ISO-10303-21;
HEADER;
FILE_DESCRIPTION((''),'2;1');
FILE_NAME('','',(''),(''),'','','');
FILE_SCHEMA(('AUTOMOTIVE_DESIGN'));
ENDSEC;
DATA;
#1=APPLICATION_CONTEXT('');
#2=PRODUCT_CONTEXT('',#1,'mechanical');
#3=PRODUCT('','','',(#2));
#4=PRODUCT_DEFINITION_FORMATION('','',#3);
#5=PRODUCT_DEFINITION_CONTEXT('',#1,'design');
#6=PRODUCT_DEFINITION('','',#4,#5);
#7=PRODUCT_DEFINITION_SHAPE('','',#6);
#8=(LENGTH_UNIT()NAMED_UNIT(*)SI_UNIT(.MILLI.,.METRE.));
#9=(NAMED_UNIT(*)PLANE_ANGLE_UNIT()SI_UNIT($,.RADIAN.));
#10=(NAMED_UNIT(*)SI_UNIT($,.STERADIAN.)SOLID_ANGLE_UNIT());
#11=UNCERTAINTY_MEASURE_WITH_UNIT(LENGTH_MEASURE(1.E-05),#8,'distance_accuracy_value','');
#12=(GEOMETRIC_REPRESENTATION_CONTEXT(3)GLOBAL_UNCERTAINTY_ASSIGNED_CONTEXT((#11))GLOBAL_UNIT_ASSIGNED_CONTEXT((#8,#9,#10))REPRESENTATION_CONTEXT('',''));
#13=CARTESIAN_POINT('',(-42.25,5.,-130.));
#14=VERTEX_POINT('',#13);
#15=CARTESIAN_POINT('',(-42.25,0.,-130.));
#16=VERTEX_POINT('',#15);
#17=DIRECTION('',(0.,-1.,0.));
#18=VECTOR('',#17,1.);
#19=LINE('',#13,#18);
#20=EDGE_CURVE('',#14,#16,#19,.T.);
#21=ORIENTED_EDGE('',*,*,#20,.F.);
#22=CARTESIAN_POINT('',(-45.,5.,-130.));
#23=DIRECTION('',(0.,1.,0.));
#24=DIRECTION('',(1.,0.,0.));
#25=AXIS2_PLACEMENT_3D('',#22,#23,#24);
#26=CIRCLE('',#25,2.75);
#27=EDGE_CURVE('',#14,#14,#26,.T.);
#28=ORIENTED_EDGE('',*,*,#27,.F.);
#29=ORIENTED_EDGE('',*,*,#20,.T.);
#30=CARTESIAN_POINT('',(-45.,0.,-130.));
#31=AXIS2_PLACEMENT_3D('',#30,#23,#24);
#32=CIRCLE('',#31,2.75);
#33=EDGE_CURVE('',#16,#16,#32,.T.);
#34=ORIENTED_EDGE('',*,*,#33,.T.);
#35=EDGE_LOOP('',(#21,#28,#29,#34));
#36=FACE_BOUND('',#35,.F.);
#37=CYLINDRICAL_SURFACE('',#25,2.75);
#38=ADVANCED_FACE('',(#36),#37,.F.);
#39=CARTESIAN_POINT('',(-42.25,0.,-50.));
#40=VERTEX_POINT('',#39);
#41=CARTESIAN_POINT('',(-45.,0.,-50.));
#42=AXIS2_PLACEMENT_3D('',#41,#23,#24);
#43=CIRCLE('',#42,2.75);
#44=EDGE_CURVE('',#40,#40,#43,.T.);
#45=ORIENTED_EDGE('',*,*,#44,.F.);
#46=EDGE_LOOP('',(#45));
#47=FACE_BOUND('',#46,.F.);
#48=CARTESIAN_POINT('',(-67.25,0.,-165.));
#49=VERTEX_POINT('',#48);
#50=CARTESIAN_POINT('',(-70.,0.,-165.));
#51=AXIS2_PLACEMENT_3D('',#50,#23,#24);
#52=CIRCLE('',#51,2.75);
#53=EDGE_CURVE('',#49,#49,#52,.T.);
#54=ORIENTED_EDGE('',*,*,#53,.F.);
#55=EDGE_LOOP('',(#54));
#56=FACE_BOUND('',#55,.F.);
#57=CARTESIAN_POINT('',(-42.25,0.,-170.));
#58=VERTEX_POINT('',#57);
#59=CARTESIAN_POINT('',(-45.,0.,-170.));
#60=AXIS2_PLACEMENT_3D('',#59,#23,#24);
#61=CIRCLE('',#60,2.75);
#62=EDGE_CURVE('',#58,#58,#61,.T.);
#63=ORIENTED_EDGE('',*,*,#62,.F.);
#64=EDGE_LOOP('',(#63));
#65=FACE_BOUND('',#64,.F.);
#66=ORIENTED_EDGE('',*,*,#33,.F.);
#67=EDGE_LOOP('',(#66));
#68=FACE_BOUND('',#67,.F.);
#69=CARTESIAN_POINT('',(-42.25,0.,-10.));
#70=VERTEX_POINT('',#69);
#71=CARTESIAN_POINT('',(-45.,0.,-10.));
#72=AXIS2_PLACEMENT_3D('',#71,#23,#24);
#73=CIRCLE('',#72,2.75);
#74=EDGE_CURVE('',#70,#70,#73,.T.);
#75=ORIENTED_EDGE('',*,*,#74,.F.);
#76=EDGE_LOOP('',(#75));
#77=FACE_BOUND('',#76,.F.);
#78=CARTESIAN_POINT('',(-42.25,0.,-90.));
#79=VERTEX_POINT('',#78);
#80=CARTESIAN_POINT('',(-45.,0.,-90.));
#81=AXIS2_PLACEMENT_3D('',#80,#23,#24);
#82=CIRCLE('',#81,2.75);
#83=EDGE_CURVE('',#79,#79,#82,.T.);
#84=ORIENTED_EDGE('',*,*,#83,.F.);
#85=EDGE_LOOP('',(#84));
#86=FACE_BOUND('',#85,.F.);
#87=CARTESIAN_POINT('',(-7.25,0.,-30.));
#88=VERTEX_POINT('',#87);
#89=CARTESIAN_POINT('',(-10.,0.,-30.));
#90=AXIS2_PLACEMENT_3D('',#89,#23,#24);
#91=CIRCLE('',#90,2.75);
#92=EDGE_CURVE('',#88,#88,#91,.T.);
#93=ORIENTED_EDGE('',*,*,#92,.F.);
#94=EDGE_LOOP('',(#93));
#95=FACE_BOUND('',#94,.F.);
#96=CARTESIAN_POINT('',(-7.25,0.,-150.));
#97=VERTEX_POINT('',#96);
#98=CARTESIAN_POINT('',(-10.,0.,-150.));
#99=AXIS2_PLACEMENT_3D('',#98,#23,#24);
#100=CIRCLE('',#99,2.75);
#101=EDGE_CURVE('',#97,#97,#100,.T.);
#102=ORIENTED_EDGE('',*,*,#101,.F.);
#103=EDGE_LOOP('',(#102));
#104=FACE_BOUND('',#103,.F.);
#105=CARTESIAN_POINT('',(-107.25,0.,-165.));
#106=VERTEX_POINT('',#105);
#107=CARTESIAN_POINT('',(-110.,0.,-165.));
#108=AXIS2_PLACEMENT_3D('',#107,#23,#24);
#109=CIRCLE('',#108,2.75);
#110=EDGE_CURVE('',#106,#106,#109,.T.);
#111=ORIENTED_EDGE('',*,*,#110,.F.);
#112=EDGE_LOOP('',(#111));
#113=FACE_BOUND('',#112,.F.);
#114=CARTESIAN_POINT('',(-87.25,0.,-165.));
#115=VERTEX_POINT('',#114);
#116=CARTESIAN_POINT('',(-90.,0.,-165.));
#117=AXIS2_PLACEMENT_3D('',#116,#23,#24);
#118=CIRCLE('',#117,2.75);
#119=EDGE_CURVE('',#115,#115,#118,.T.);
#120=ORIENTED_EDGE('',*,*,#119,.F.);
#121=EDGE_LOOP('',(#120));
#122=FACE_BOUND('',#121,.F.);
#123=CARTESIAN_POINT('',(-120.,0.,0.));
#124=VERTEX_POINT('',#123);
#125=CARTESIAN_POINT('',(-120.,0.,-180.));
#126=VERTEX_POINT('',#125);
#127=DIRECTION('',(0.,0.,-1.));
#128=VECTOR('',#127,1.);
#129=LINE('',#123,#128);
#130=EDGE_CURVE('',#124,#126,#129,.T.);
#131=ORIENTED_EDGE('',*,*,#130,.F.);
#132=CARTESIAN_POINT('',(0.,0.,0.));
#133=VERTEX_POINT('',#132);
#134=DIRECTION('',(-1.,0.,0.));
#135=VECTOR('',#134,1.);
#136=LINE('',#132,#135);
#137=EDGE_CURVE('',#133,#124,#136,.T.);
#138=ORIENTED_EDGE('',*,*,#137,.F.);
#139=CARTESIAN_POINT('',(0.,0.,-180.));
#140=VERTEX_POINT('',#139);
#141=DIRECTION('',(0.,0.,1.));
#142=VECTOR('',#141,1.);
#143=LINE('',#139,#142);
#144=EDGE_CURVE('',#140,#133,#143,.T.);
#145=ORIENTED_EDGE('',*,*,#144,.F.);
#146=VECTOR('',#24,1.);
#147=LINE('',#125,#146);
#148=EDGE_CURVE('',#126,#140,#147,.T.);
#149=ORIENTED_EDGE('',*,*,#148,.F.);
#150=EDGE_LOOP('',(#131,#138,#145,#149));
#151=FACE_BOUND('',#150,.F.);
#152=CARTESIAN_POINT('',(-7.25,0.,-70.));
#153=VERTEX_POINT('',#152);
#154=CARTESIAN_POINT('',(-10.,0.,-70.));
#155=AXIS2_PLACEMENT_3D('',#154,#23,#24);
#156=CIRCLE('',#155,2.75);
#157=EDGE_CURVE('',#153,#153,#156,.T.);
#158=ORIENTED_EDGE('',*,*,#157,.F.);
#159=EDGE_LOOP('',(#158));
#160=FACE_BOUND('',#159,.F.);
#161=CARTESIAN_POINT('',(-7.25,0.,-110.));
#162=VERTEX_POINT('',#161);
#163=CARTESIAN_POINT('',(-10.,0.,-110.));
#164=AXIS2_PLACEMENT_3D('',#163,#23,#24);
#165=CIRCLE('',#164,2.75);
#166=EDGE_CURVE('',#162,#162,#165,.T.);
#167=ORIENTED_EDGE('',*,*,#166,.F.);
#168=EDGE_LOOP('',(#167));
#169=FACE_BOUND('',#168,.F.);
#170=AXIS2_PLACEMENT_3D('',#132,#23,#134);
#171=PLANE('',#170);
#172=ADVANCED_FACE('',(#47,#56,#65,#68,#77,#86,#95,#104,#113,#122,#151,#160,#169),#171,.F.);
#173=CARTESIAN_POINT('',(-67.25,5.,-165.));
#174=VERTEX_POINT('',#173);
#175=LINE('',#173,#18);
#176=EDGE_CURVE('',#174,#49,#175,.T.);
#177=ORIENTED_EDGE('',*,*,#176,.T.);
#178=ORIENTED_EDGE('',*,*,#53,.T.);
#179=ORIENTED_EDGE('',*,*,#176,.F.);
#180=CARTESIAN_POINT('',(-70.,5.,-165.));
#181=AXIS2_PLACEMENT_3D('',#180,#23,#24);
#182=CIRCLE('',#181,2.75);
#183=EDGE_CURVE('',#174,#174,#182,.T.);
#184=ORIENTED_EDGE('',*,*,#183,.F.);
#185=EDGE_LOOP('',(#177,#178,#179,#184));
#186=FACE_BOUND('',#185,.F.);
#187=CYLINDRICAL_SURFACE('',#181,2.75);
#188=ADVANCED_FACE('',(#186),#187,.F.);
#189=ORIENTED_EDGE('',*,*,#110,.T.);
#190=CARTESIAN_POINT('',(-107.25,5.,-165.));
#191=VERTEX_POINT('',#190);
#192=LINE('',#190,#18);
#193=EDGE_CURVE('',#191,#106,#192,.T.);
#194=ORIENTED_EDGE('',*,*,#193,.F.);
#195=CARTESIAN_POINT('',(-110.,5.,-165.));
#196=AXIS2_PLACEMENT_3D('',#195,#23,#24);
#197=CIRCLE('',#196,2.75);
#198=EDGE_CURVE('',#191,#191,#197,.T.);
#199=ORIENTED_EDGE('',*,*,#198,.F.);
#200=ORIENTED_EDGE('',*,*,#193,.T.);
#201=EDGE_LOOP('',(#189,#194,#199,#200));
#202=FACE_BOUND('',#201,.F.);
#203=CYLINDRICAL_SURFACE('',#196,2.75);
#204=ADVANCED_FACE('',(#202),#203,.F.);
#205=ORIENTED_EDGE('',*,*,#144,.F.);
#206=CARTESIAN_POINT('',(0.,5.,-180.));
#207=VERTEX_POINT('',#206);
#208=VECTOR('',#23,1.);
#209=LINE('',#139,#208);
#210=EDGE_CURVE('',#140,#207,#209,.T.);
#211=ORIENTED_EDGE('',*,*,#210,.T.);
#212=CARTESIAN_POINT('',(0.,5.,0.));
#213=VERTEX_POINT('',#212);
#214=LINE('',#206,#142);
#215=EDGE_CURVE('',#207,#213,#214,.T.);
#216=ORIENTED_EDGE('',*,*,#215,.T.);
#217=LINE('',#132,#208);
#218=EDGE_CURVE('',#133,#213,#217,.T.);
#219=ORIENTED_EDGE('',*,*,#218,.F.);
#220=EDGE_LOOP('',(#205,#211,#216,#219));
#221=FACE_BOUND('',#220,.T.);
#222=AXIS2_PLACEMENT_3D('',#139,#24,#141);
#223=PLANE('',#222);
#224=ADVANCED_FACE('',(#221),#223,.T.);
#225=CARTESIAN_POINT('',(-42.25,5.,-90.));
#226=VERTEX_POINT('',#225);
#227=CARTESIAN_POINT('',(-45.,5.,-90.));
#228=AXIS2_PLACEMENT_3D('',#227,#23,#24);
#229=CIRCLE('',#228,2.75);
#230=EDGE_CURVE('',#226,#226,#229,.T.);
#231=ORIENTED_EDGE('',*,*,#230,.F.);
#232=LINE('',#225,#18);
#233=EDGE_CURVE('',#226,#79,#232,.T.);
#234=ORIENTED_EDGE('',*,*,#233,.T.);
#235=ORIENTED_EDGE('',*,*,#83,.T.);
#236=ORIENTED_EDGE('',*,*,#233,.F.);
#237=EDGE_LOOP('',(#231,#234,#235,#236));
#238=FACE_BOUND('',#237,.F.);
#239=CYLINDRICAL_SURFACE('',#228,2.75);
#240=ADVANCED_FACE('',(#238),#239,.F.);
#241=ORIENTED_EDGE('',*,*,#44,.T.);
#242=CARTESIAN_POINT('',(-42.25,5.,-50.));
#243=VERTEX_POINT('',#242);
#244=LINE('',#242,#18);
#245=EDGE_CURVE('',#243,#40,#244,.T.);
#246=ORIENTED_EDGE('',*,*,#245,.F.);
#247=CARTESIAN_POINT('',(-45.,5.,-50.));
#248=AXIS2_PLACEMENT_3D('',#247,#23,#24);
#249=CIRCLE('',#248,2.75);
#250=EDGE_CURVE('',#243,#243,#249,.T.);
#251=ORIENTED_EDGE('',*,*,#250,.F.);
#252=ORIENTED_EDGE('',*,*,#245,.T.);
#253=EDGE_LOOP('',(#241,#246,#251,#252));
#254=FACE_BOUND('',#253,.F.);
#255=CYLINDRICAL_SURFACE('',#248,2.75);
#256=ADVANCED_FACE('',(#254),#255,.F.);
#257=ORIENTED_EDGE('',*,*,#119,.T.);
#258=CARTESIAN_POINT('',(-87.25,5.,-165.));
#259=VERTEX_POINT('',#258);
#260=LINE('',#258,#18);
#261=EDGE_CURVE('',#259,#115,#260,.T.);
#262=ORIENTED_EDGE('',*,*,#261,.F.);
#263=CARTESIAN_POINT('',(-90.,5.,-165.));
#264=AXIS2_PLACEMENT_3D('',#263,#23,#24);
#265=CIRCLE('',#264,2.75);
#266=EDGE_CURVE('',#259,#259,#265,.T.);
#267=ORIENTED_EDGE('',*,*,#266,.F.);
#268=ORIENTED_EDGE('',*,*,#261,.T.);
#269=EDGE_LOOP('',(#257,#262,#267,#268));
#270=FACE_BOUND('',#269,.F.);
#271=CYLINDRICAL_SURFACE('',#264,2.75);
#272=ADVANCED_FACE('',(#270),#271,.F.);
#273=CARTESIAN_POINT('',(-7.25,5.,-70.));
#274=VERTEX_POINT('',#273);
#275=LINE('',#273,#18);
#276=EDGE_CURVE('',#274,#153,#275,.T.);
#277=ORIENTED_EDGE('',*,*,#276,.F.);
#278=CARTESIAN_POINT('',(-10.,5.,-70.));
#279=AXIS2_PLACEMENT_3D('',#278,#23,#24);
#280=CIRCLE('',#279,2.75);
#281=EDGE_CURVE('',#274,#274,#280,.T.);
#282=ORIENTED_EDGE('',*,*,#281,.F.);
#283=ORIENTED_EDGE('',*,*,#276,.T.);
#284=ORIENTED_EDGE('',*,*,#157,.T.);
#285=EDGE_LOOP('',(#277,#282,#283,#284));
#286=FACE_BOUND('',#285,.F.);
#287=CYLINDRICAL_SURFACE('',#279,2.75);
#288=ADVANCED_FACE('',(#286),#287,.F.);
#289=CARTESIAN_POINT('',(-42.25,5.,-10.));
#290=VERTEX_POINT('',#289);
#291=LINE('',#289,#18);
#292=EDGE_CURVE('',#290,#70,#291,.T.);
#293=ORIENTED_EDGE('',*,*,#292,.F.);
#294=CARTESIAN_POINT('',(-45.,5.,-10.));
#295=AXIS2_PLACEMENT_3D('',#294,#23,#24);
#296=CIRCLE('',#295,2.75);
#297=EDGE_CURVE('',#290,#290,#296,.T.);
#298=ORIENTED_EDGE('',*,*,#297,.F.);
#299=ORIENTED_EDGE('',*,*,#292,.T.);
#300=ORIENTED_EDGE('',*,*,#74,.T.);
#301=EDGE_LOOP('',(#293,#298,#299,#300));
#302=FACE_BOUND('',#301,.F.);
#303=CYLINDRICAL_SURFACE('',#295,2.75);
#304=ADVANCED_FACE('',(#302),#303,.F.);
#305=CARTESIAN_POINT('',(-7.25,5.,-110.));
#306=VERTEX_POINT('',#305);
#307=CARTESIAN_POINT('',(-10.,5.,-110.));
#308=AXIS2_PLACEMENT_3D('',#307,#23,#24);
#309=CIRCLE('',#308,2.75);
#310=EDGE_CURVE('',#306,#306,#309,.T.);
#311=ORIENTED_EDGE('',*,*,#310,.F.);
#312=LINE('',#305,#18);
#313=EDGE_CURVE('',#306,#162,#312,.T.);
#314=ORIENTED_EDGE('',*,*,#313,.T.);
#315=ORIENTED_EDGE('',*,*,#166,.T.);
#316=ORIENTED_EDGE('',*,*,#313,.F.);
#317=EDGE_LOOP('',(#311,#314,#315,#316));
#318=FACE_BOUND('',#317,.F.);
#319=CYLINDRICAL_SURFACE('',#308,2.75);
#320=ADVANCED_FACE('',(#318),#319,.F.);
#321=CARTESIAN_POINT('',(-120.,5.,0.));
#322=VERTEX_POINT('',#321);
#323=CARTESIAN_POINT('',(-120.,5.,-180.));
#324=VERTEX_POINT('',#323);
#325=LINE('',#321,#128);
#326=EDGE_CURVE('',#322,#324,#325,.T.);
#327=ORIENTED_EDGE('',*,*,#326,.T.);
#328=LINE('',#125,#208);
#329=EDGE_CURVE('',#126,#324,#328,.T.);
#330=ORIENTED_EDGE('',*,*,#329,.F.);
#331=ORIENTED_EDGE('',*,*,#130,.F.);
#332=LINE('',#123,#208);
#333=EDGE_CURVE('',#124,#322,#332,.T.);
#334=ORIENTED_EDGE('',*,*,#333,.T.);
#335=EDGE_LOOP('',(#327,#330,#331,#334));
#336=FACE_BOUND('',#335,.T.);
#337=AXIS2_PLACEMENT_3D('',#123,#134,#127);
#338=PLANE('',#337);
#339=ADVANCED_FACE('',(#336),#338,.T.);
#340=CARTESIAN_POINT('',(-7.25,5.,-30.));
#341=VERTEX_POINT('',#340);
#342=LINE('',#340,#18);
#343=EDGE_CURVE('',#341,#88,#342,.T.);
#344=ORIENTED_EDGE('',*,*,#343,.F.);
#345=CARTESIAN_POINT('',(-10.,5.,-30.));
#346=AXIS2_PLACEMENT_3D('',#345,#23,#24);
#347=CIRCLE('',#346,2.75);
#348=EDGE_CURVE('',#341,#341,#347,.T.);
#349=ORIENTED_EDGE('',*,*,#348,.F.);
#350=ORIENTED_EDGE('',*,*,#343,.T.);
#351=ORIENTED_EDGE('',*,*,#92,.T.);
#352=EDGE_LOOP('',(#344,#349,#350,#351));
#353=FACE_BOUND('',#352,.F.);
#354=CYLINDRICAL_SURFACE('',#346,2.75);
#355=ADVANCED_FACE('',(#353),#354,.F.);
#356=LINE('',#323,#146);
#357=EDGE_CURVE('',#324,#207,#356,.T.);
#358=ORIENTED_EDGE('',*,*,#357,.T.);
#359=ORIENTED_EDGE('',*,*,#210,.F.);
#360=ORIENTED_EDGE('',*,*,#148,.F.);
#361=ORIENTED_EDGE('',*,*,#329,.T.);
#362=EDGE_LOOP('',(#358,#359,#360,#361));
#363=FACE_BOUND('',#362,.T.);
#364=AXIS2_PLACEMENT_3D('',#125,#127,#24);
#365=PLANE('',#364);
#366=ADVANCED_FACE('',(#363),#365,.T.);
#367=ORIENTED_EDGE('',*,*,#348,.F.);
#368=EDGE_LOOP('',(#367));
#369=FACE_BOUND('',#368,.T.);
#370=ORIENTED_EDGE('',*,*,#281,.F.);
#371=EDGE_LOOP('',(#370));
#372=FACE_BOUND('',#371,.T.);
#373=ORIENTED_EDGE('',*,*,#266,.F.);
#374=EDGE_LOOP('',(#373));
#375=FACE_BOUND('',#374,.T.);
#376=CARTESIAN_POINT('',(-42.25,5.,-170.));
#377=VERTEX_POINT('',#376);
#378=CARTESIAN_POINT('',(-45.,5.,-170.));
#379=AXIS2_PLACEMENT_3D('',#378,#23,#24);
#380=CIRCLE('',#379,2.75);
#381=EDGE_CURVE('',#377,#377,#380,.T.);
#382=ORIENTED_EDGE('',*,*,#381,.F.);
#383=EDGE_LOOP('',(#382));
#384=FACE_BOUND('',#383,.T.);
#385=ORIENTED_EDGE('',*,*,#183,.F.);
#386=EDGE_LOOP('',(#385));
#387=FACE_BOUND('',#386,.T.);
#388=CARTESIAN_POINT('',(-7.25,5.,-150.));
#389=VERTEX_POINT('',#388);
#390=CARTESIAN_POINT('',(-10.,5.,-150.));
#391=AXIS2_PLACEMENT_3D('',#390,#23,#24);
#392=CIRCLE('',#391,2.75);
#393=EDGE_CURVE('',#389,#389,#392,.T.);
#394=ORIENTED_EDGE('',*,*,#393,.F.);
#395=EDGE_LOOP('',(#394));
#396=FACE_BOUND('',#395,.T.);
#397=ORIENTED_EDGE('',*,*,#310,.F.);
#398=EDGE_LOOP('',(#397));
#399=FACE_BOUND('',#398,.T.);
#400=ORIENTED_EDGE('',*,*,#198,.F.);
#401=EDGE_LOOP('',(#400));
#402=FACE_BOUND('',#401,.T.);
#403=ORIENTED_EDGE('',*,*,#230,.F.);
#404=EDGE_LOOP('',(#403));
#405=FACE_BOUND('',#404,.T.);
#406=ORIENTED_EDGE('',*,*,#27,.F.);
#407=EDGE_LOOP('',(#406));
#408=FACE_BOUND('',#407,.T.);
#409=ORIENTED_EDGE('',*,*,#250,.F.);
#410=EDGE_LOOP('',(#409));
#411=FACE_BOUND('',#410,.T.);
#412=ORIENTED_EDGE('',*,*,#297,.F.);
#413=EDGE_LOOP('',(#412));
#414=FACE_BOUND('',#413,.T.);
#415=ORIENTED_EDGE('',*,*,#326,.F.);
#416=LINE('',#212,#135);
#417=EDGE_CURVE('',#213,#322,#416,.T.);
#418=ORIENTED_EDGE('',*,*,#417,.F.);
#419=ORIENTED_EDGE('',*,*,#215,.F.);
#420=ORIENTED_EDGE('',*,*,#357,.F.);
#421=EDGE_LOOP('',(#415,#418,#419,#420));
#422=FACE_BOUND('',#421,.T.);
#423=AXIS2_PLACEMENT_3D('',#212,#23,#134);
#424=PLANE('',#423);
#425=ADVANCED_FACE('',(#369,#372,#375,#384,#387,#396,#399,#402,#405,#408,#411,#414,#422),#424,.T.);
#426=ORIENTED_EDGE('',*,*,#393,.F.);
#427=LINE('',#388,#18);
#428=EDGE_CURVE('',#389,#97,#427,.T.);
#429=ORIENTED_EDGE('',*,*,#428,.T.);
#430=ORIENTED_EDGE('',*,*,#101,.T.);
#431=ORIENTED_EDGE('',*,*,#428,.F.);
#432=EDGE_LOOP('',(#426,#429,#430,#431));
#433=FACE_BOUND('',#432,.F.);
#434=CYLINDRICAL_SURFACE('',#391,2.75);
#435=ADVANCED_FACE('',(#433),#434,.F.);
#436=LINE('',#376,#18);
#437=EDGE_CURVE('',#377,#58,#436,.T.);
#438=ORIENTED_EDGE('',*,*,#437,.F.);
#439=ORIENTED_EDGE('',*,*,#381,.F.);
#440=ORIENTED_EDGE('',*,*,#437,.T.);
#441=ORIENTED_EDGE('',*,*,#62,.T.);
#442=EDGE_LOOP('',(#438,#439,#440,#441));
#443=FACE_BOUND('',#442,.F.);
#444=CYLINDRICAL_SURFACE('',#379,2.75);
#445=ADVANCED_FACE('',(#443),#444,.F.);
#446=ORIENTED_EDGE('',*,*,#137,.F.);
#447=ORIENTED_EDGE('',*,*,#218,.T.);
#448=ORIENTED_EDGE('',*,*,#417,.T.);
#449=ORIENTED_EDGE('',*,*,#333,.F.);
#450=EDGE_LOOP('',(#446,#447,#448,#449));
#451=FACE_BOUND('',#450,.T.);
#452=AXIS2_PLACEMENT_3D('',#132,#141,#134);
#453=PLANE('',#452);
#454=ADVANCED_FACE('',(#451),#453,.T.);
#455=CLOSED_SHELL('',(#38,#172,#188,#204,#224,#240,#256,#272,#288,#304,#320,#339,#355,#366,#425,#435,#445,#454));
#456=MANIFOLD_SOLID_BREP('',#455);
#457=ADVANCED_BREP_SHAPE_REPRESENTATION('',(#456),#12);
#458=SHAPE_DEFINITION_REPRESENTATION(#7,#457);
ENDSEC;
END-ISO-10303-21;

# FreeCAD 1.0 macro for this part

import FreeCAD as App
import Part
import Sketcher


def add_polygon(sketch, points):
    """Adds a closed chain of lines whose ends are joined by coincident constraints."""
    first, n = sketch.GeometryCount, len(points)
    for a, b in zip(points, points[1:] + points[:1]):
        sketch.addGeometry(Part.LineSegment(App.Vector(*a, 0), App.Vector(*b, 0)), False)
    for i in range(n):
        sketch.addConstraint(Sketcher.Constraint("Coincident", first + i, 2, first + (i + 1) % n, 1))

doc = App.newDocument("Part")
body = doc.addObject("PartDesign::Body", "Body")

sketch1 = body.newObject("Sketcher::SketchObject", "Sketch")
sketch1.AttachmentSupport = (doc.getObject("XZ_Plane"), [""])
sketch1.MapMode = "FlatFace"
add_polygon(sketch1, [(-120, 0), (0, 0), (0, -180), (-120, -180)])
sketch1.addConstraint([
    Sketcher.Constraint("Horizontal", 0),
    Sketcher.Constraint("Vertical", 1),
    Sketcher.Constraint("Horizontal", 2),
    Sketcher.Constraint("Vertical", 3),
    Sketcher.Constraint("Coincident", 0, 2, -1, 1),
    Sketcher.Constraint("DistanceX", 0, 1, 0, 2, 120.0),
    Sketcher.Constraint("DistanceY", 1, 2, 1, 1, 180.0),
])
pad1 = body.newObject("PartDesign::Pad", "Pad")
pad1.Profile = sketch1
pad1.Length = 5
pad1.Reversed = True

sketch2 = body.newObject("Sketcher::SketchObject", "Sketch001")
sketch2.AttachmentSupport = (doc.getObject("XZ_Plane"), [""])
sketch2.MapMode = "FlatFace"
sketch2.AttachmentOffset = App.Placement(App.Vector(0, 0, -5), App.Rotation())
sketch2.addGeometry([
    Part.Circle(App.Vector(-45, -10, 0), App.Vector(0, 0, 1), 2.75),
    Part.Circle(App.Vector(-45, -50, 0), App.Vector(0, 0, 1), 2.75),
    Part.Circle(App.Vector(-45, -90, 0), App.Vector(0, 0, 1), 2.75),
    Part.Circle(App.Vector(-45, -130, 0), App.Vector(0, 0, 1), 2.75),
    Part.Circle(App.Vector(-45, -170, 0), App.Vector(0, 0, 1), 2.75),
    Part.Circle(App.Vector(-10, -30, 0), App.Vector(0, 0, 1), 2.75),
    Part.Circle(App.Vector(-10, -70, 0), App.Vector(0, 0, 1), 2.75),
    Part.Circle(App.Vector(-10, -110, 0), App.Vector(0, 0, 1), 2.75),
    Part.Circle(App.Vector(-10, -150, 0), App.Vector(0, 0, 1), 2.75),
], False)
sketch2.addConstraint([
    Sketcher.Constraint("Equal", 0, 1),
    Sketcher.Constraint("Equal", 1, 2),
    Sketcher.Constraint("Equal", 2, 3),
    Sketcher.Constraint("Equal", 3, 4),
    Sketcher.Constraint("Equal", 4, 5),
    Sketcher.Constraint("Equal", 5, 6),
    Sketcher.Constraint("Equal", 6, 7),
    Sketcher.Constraint("Equal", 7, 8),
    Sketcher.Constraint("Vertical", 0, 3, 1, 3),
    Sketcher.Constraint("Vertical", 1, 3, 2, 3),
    Sketcher.Constraint("Vertical", 2, 3, 3, 3),
    Sketcher.Constraint("Vertical", 3, 3, 4, 3),
    Sketcher.Constraint("Vertical", 5, 3, 6, 3),
    Sketcher.Constraint("Vertical", 6, 3, 7, 3),
    Sketcher.Constraint("Vertical", 7, 3, 8, 3),
    Sketcher.Constraint("Diameter", 0, 5.5),
    Sketcher.Constraint("DistanceX", 0, 3, -1, 1, 45.0),
    Sketcher.Constraint("DistanceY", 0, 3, -1, 1, 10.0),
    Sketcher.Constraint("DistanceX", 5, 3, -1, 1, 10.0),
    Sketcher.Constraint("DistanceY", 5, 3, -1, 1, 30.0),
    Sketcher.Constraint("DistanceY", 1, 3, 0, 3, 40.0),
    Sketcher.Constraint("DistanceY", 2, 3, 1, 3, 40.0),
    Sketcher.Constraint("DistanceY", 3, 3, 2, 3, 40.0),
    Sketcher.Constraint("DistanceY", 4, 3, 3, 3, 40.0),
    Sketcher.Constraint("DistanceY", 6, 3, 5, 3, 40.0),
    Sketcher.Constraint("DistanceY", 7, 3, 6, 3, 40.0),
    Sketcher.Constraint("DistanceY", 8, 3, 7, 3, 40.0),
])
pocket1 = body.newObject("PartDesign::Pocket", "Pocket")
pocket1.Profile = sketch2
pocket1.Length = 5
pocket1.Reversed = True

sketch3 = body.newObject("Sketcher::SketchObject", "Sketch002")
sketch3.AttachmentSupport = (doc.getObject("XZ_Plane"), [""])
sketch3.MapMode = "FlatFace"
sketch3.AttachmentOffset = App.Placement(App.Vector(0, 0, -5), App.Rotation())
sketch3.addGeometry([
    Part.Circle(App.Vector(-110, -165, 0), App.Vector(0, 0, 1), 2.75),
    Part.Circle(App.Vector(-90, -165, 0), App.Vector(0, 0, 1), 2.75),
    Part.Circle(App.Vector(-70, -165, 0), App.Vector(0, 0, 1), 2.75),
], False)
sketch3.addConstraint([
    Sketcher.Constraint("Equal", 0, 1),
    Sketcher.Constraint("Equal", 1, 2),
    Sketcher.Constraint("Horizontal", 0, 3, 1, 3),
    Sketcher.Constraint("Horizontal", 1, 3, 2, 3),
    Sketcher.Constraint("Diameter", 0, 5.5),
    Sketcher.Constraint("DistanceX", 0, 3, 1, 3, 20.0),
    Sketcher.Constraint("DistanceX", 1, 3, 2, 3, 20.0),
    Sketcher.Constraint("DistanceX", 0, 3, -1, 1, 110.0),
    Sketcher.Constraint("DistanceY", 0, 3, -1, 1, 165.0),
])
pocket2 = body.newObject("PartDesign::Pocket", "Pocket001")
pocket2.Profile = sketch3
pocket2.Length = 5
pocket2.Reversed = True

doc.recompute()
